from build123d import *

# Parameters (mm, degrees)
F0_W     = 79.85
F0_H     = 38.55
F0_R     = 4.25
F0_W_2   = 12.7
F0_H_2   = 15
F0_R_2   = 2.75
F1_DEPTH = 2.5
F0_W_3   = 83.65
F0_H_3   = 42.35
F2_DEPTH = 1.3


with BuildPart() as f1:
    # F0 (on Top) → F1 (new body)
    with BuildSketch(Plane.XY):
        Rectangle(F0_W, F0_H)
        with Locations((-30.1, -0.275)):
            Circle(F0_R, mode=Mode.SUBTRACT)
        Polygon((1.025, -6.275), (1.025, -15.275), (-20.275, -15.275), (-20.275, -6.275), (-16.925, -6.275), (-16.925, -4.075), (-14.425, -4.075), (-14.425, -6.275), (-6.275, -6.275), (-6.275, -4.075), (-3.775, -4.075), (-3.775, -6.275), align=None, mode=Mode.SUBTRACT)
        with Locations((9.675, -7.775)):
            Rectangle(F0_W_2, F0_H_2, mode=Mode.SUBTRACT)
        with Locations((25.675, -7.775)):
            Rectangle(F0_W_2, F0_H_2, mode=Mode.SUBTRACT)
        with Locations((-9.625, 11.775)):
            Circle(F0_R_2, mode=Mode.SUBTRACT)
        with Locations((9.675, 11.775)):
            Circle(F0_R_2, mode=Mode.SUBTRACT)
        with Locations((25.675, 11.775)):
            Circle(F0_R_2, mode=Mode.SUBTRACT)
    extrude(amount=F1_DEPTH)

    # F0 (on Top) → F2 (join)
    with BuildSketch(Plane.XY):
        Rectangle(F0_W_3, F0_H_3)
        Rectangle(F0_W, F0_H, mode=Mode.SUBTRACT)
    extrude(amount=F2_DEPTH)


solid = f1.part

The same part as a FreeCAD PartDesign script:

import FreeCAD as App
import Part
import Sketcher
Q = App.Units.Quantity


def add_polygon(sketch, points):
    """Adds a closed chain of lines whose ends are joined by coincident constraints."""
    first, n = sketch.GeometryCount, len(points)
    for a, b in zip(points, points[1:] + points[:1]):
        sketch.addGeometry(Part.LineSegment(App.Vector(*a, 0), App.Vector(*b, 0)), False)
    for i in range(n):
        sketch.addConstraint(Sketcher.Constraint("Coincident", first + i, 2, first + (i + 1) % n, 1))

doc = App.newDocument("Part")
params = doc.addObject("Spreadsheet::Sheet", "Params")
for row, (alias, value) in enumerate([
    ("sketch1_diameter", "8.5 mm"),
    ("sketch1_diameter2", "5.5 mm"),
    ("sketch1_height", "9 mm"),
    ("sketch1_height2", "15 mm"),
    ("sketch1_width", "4.8 mm"),
    ("pad1_length", "2.5 mm"),
    ("sketch2_width", "83.65 mm"),
    ("sketch2_width2", "79.85 mm"),
    ("sketch2_height", "42.35 mm"),
    ("sketch2_height2", "38.55 mm"),
    ("pad2_length", "1.3 mm"),
], start=1):
    params.set(f"A{row}", alias)
    params.set(f"B{row}", "=" + value)
    params.setAlias(f"B{row}", alias)

body = doc.addObject("PartDesign::Body", "Body")

sketch1 = body.newObject("Sketcher::SketchObject", "Sketch")
sketch1.AttachmentSupport = (doc.getObject("XY_Plane"), [""])
sketch1.MapMode = "FlatFace"
add_polygon(sketch1, [(-39.925, 19.275), (-39.925, -19.275), (39.925, -19.275), (39.925, 19.275)])
add_polygon(sketch1, [(-3.775, -6.275), (1.025, -6.275), (1.025, -15.275), (-20.275, -15.275), (-20.275, -6.275), (-16.925, -6.275), (-16.925, -4.075), (-14.425, -4.075), (-14.425, -6.275), (-6.275, -6.275), (-6.275, -4.075), (-3.775, -4.075)])
add_polygon(sketch1, [(16.025, -15.275), (3.325, -15.275), (3.325, -0.275), (16.025, -0.275)])
add_polygon(sketch1, [(32.025, -15.275), (19.325, -15.275), (19.325, -0.275), (32.025, -0.275)])
sketch1.addGeometry(Part.Circle(App.Vector(-30.1, -0.275, 0), App.Vector(0, 0, 1), 4.25), False)
sketch1.addGeometry(Part.Circle(App.Vector(-9.625, 11.775, 0), App.Vector(0, 0, 1), 2.75), False)
sketch1.addGeometry(Part.Circle(App.Vector(9.675, 11.775, 0), App.Vector(0, 0, 1), 2.75), False)
sketch1.addGeometry(Part.Circle(App.Vector(25.675, 11.775, 0), App.Vector(0, 0, 1), 2.75), False)
sketch1.addConstraint([
    Sketcher.Constraint("Vertical", 0),
    Sketcher.Constraint("Horizontal", 1),
    Sketcher.Constraint("Vertical", 2),
    Sketcher.Constraint("Horizontal", 3),
    Sketcher.Constraint("Horizontal", 4),
    Sketcher.Constraint("Vertical", 5),
    Sketcher.Constraint("Horizontal", 6),
    Sketcher.Constraint("Vertical", 7),
    Sketcher.Constraint("Horizontal", 8),
    Sketcher.Constraint("Vertical", 9),
    Sketcher.Constraint("Horizontal", 10),
    Sketcher.Constraint("Vertical", 11),
    Sketcher.Constraint("Horizontal", 12),
    Sketcher.Constraint("Vertical", 13),
    Sketcher.Constraint("Horizontal", 14),
    Sketcher.Constraint("Vertical", 15),
    Sketcher.Constraint("Horizontal", 16),
    Sketcher.Constraint("Vertical", 17),
    Sketcher.Constraint("Horizontal", 18),
    Sketcher.Constraint("Vertical", 19),
    Sketcher.Constraint("Horizontal", 20),
    Sketcher.Constraint("Vertical", 21),
    Sketcher.Constraint("Horizontal", 22),
    Sketcher.Constraint("Vertical", 23),
    Sketcher.Constraint("Equal", 25, 26),
    Sketcher.Constraint("Equal", 26, 27),
    Sketcher.Constraint("Symmetric", 0, 2, 2, 2, -1, 1),
    Sketcher.Constraint("Horizontal", 25, 3, 26, 3),
    Sketcher.Constraint("Horizontal", 26, 3, 27, 3),
    Sketcher.Constraint("Horizontal", 4, 2, 7, 2),
    Sketcher.Constraint("Horizontal", 8, 2, 11, 2),
    Sketcher.Constraint("Horizontal", 10, 2, 13, 2),
    Sketcher.Constraint("Horizontal", 6, 2, 16, 2),
    Sketcher.Constraint("Horizontal", 24, 3, 17, 2),
    Sketcher.Constraint("Horizontal", 19, 2, 20, 2),
    Sketcher.Constraint("Horizontal", 18, 2, 21, 2),
    Sketcher.Constraint("Equal", 10, 14),
    Sketcher.Constraint("Equal", 18, 20),
    Sketcher.Constraint("Diameter", 24, Q("8.5 mm")),
    Sketcher.Constraint("Diameter", 25, Q("5.5 mm")),
    Sketcher.Constraint("DistanceY", 5, 2, 5, 1, Q("9 mm")),
    Sketcher.Constraint("DistanceY", 17, 1, 17, 2, Q("15 mm")),
    Sketcher.Constraint("DistanceX", 4, 1, 4, 2, Q("4.8 mm")),
    Sketcher.Constraint("DistanceX", 6, 2, 6, 1, Q("21.3 mm")),
    Sketcher.Constraint("DistanceX", 10, 1, 10, 2, Q("2.5 mm")),
    Sketcher.Constraint("DistanceX", 16, 2, 16, 1, Q("12.7 mm")),
    Sketcher.Constraint("DistanceY", 9, 1, 9, 2, Q("2.2 mm")),
    Sketcher.Constraint("DistanceX", 26, 3, 27, 3, Q("16 mm")),
    Sketcher.Constraint("DistanceY", 0, 2, 24, 3, Q("19 mm")),
    Sketcher.Constraint("DistanceX", 4, 2, 18, 2, Q("15 mm")),
    Sketcher.Constraint("DistanceX", 16, 2, 20, 2, Q("16 mm")),
    Sketcher.Constraint("DistanceX", 1, 1, 1, 2, Q("79.85 mm")),
    Sketcher.Constraint("DistanceX", 8, 1, 8, 2, Q("3.35 mm")),
    Sketcher.Constraint("DistanceY", 0, 2, 0, 1, Q("38.55 mm")),
    Sketcher.Constraint("DistanceX", 24, 3, -1, 1, Q("30.1 mm")),
    Sketcher.Constraint("DistanceX", 25, 3, 26, 3, Q("19.3 mm")),
    Sketcher.Constraint("DistanceX", 0, 2, 25, 3, Q("30.3 mm")),
    Sketcher.Constraint("DistanceY", 27, 3, 2, 2, Q("7.5 mm")),
    Sketcher.Constraint("DistanceX", 4, 2, 1, 2, Q("38.9 mm")),
])
sketch1.setExpression("Constraints[62]", "Params.sketch1_diameter")
sketch1.setExpression("Constraints[63]", "Params.sketch1_diameter2")
sketch1.setExpression("Constraints[64]", "Params.sketch1_height")
sketch1.setExpression("Constraints[65]", "Params.sketch1_height2")
sketch1.setExpression("Constraints[66]", "Params.sketch1_width")
pad1 = body.newObject("PartDesign::Pad", "Pad")
pad1.Profile = sketch1
pad1.setExpression("Length", "Params.pad1_length")

sketch2 = body.newObject("Sketcher::SketchObject", "Sketch001")
sketch2.AttachmentSupport = (doc.getObject("XY_Plane"), [""])
sketch2.MapMode = "FlatFace"
add_polygon(sketch2, [(-41.825, 21.175), (-41.825, -21.175), (41.825, -21.175), (41.825, 21.175)])
add_polygon(sketch2, [(39.925, -19.275), (-39.925, -19.275), (-39.925, 19.275), (39.925, 19.275)])
sketch2.addConstraint([
    Sketcher.Constraint("Vertical", 0),
    Sketcher.Constraint("Horizontal", 1),
    Sketcher.Constraint("Vertical", 2),
    Sketcher.Constraint("Horizontal", 3),
    Sketcher.Constraint("Horizontal", 4),
    Sketcher.Constraint("Vertical", 5),
    Sketcher.Constraint("Horizontal", 6),
    Sketcher.Constraint("Vertical", 7),
    Sketcher.Constraint("Symmetric", 0, 2, 2, 2, -1, 1),
    Sketcher.Constraint("Symmetric", 4, 2, 6, 2, -1, 1),
    Sketcher.Constraint("DistanceX", 1, 1, 1, 2, Q("83.65 mm")),
    Sketcher.Constraint("DistanceX", 4, 2, 4, 1, Q("79.85 mm")),
    Sketcher.Constraint("DistanceY", 0, 2, 0, 1, Q("42.35 mm")),
    Sketcher.Constraint("DistanceY", 5, 1, 5, 2, Q("38.55 mm")),
])
sketch2.setExpression("Constraints[18]", "Params.sketch2_width")
sketch2.setExpression("Constraints[19]", "Params.sketch2_width2")
sketch2.setExpression("Constraints[20]", "Params.sketch2_height")
sketch2.setExpression("Constraints[21]", "Params.sketch2_height2")
pad2 = body.newObject("PartDesign::Pad", "Pad001")
pad2.Profile = sketch2
pad2.setExpression("Length", "Params.pad2_length")

doc.recompute()
